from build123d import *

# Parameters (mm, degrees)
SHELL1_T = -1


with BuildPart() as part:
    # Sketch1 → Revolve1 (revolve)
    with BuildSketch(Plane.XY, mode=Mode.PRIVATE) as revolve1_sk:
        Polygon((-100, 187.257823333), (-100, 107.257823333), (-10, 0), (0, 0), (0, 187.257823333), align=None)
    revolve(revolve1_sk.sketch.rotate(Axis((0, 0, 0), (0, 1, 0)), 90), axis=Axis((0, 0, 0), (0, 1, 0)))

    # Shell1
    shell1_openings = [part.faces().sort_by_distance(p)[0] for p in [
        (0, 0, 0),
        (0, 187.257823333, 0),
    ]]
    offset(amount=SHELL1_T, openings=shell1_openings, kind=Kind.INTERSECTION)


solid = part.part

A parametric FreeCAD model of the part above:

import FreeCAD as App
import Part
import Sketcher
from FreeCAD import Vector
Q = App.Units.Quantity


def faces_at(feature, points):
    """Names of the faces that lie closest to the given points."""
    faces = feature.Shape.Faces
    near = lambda p: min(range(len(faces)), key=lambda i: faces[i].distToShape(Part.Vertex(*p))[0])
    return sorted({f"Face{near(p) + 1}" for p in points})


def add_polygon(sketch, points):
    """Adds a closed chain of lines whose ends are joined by coincident constraints."""
    first, n = sketch.GeometryCount, len(points)
    for a, b in zip(points, points[1:] + points[:1]):
        sketch.addGeometry(Part.LineSegment(App.Vector(*a, 0), App.Vector(*b, 0)), False)
    for i in range(n):
        sketch.addConstraint(Sketcher.Constraint("Coincident", first + i, 2, first + (i + 1) % n, 1))

doc = App.newDocument("Part")
body = doc.addObject("PartDesign::Body", "Body")

# Sketch on XY plane
sketch1 = body.newObject("Sketcher::SketchObject", "Sketch")
sketch1.AttachmentSupport = (doc.getObject("XY_Plane"), [""])
sketch1.MapMode = "FlatFace"
add_polygon(sketch1, [(-100, 187.257823), (-100, 107.257823), (-10, 0), (0, 0), (0, 187.257823)])  # lines 0-4
sketch1.addConstraint([
    Sketcher.Constraint("Vertical", 0),
    Sketcher.Constraint("Horizontal", 2),
    Sketcher.Constraint("Vertical", 3),
    Sketcher.Constraint("Horizontal", 4),
    Sketcher.Constraint("Coincident", 2, 2, -1, 1),
    Sketcher.Constraint("DistanceX", 2, 1, 2, 2, Q("10 mm")),
    Sketcher.Constraint("DistanceX", 4, 2, 4, 1, Q("100 mm")),
    Sketcher.Constraint("DistanceY", 0, 2, 0, 1, Q("80 mm")),
    Sketcher.Constraint("Angle", 1, Q("-50 deg")),
])
revolution = body.newObject("PartDesign::Revolution", "Revolution")
revolution.Profile = sketch1
revolution.ReferenceAxis = (sketch1, ["V_Axis"])
revolution.Angle = 360
doc.recompute()

thickness = body.newObject("PartDesign::Thickness", "Thickness")
thickness.Base = (revolution, faces_at(revolution, [(0, 0, 0), (0, 187.258, 0)]))
thickness.Value = 1
thickness.Reversed = True
thickness.Join = "Intersection"

doc.recompute()
